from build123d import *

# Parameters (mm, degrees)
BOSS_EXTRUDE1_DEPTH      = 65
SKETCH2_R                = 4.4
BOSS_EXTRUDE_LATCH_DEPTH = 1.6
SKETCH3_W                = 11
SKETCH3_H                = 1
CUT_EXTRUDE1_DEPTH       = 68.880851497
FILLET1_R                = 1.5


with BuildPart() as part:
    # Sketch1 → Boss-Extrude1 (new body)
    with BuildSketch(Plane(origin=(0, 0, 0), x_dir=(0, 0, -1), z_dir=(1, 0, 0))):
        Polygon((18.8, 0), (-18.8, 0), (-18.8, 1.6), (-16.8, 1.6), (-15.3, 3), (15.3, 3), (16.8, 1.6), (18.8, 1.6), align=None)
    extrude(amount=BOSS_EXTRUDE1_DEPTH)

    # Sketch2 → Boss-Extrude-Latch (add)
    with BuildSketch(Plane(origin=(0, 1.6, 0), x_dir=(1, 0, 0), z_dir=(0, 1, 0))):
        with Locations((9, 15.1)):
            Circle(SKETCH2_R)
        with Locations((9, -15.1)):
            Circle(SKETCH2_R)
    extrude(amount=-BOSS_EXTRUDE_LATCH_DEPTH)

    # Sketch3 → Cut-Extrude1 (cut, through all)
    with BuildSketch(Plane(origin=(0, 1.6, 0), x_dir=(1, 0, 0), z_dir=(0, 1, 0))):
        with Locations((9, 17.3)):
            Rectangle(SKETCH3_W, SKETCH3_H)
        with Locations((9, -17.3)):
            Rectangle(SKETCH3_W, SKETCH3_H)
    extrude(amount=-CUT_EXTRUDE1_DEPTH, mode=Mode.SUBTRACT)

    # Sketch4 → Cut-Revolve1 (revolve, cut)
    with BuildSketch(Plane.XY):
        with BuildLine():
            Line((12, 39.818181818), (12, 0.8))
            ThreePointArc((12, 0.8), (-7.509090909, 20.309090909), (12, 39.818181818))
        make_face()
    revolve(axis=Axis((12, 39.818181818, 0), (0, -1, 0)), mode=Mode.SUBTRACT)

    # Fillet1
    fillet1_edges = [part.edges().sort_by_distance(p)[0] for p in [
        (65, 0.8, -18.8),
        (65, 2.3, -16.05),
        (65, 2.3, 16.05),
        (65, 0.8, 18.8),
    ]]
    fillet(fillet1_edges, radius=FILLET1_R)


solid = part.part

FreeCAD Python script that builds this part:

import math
import FreeCAD as App
import Part
import Sketcher
from FreeCAD import Vector
Q = App.Units.Quantity


def edges_at(feature, points):
    """Names of the edges that pass closest to the given points."""
    edges = feature.Shape.Edges
    near = lambda p: min(range(len(edges)), key=lambda i: edges[i].distToShape(Part.Vertex(*p))[0])
    return sorted({f"Edge{near(p) + 1}" for p in points})


def add_polygon(sketch, points):
    """Adds a closed chain of lines whose ends are joined by coincident constraints."""
    first, n = sketch.GeometryCount, len(points)
    for a, b in zip(points, points[1:] + points[:1]):
        sketch.addGeometry(Part.LineSegment(App.Vector(*a, 0), App.Vector(*b, 0)), False)
    for i in range(n):
        sketch.addConstraint(Sketcher.Constraint("Coincident", first + i, 2, first + (i + 1) % n, 1))

doc = App.newDocument("Part")
body = doc.addObject("PartDesign::Body", "Body")

sketch1 = body.newObject("Sketcher::SketchObject", "Sketch")
sketch1.AttachmentSupport = (doc.getObject("YZ_Plane"), [""])
sketch1.MapMode = "FlatFace"
add_polygon(sketch1, [(0, 18.8), (0, -18.8), (1.6, -18.8), (1.6, -16.8), (3, -15.3), (3, 15.3), (1.6, 16.8), (1.6, 18.8)])
sketch1.addConstraint(Sketcher.Constraint("Vertical", 0))
sketch1.addConstraint(Sketcher.Constraint("Horizontal", 1))
sketch1.addConstraint(Sketcher.Constraint("Vertical", 2))
sketch1.addConstraint(Sketcher.Constraint("Vertical", 4))
sketch1.addConstraint(Sketcher.Constraint("Vertical", 6))
sketch1.addConstraint(Sketcher.Constraint("Horizontal", 7))
sketch1.addConstraint(Sketcher.Constraint("Symmetric", 0, 2, 7, 2, -1, 1))
sketch1.addConstraint(Sketcher.Constraint("Symmetric", 2, 2, 5, 2, -1))
sketch1.addConstraint(Sketcher.Constraint("Equal", 3, 5))
sketch1.addConstraint(Sketcher.Constraint("DistanceY", 2, 1, 2, 2, Q("2 mm")))
sketch1.addConstraint(Sketcher.Constraint("DistanceX", 1, 1, 1, 2, Q("1.6 mm")))
sketch1.addConstraint(Sketcher.Constraint("DistanceY", 0, 2, 0, 1, Q("37.6 mm")))
sketch1.addConstraint(Sketcher.Constraint("DistanceY", 4, 1, 4, 2, Q("30.6 mm")))
sketch1.addConstraint(Sketcher.Constraint("DistanceX", -1, 1, 3, 2, Q("3 mm")))
pad1 = body.newObject("PartDesign::Pad", "Pad")
pad1.Profile = sketch1
pad1.Length = 65

sketch2 = body.newObject("Sketcher::SketchObject", "Sketch001")
sketch2.AttachmentSupport = (doc.getObject("XZ_Plane"), [""])
sketch2.MapMode = "FlatFace"
sketch2.AttachmentOffset = App.Placement(Vector(0, 0, -1.6), App.Rotation())
sketch2.addGeometry(Part.Circle(Vector(9, -15.1, 0), Vector(0, 0, 1), 4.4), False)
sketch2.addGeometry(Part.Circle(Vector(9, 15.1, 0), Vector(0, 0, 1), 4.4), False)
sketch2.addConstraint(Sketcher.Constraint("Equal", 0, 1))
sketch2.addConstraint(Sketcher.Constraint("Symmetric", 0, 3, 1, 3, -1))
sketch2.addConstraint(Sketcher.Constraint("Diameter", 0, Q("8.8 mm")))
sketch2.addConstraint(Sketcher.Constraint("DistanceX", -1, 1, 0, 3, Q("9 mm")))
sketch2.addConstraint(Sketcher.Constraint("DistanceY", 0, 3, -1, 1, Q("15.1 mm")))
pad2 = body.newObject("PartDesign::Pad", "Pad001")
pad2.Profile = sketch2
pad2.Length = 1.6

sketch3 = body.newObject("Sketcher::SketchObject", "Sketch002")
sketch3.AttachmentSupport = (doc.getObject("XZ_Plane"), [""])
sketch3.MapMode = "FlatFace"
sketch3.AttachmentOffset = App.Placement(Vector(0, 0, -1.6), App.Rotation())
add_polygon(sketch3, [(3.5, -17.8), (3.5, -16.8), (14.5, -16.8), (14.5, -17.8)])
add_polygon(sketch3, [(3.5, 16.8), (3.5, 17.8), (14.5, 17.8), (14.5, 16.8)])
sketch3.addConstraint(Sketcher.Constraint("Vertical", 0))
sketch3.addConstraint(Sketcher.Constraint("Horizontal", 1))
sketch3.addConstraint(Sketcher.Constraint("Vertical", 2))
sketch3.addConstraint(Sketcher.Constraint("Horizontal", 3))
sketch3.addConstraint(Sketcher.Constraint("Vertical", 4))
sketch3.addConstraint(Sketcher.Constraint("Horizontal", 5))
sketch3.addConstraint(Sketcher.Constraint("Vertical", 6))
sketch3.addConstraint(Sketcher.Constraint("Horizontal", 7))
sketch3.addConstraint(Sketcher.Constraint("Symmetric", 3, 2, 4, 2, -1))
sketch3.addConstraint(Sketcher.Constraint("Symmetric", 1, 2, 6, 2, -1))
sketch3.addConstraint(Sketcher.Constraint("DistanceX", 1, 1, 1, 2, Q("11 mm")))
sketch3.addConstraint(Sketcher.Constraint("DistanceY", 0, 1, 0, 2, Q("1 mm")))
sketch3.addConstraint(Sketcher.Constraint("DistanceX", -1, 1, 0, 2, Q("3.5 mm")))
sketch3.addConstraint(Sketcher.Constraint("DistanceY", 0, 2, -1, 1, Q("16.8 mm")))
pocket1 = body.newObject("PartDesign::Pocket", "Pocket")
pocket1.Profile = sketch3
pocket1.Type = "ThroughAll"
pocket1.Reversed = True

sketch4 = body.newObject("Sketcher::SketchObject", "Sketch003")
sketch4.AttachmentSupport = (doc.getObject("XY_Plane"), [""])
sketch4.MapMode = "FlatFace"
sketch4.addGeometry(Part.LineSegment(Vector(12, 1, 0), Vector(12, 40, 0)), False)
sketch4.addGeometry(Part.ArcOfCircle(Part.Circle(Vector(12, 20, 0), Vector(0, 0, 1), 20), math.radians(90), math.radians(270)), False)
sketch4.addGeometry(Part.LineSegment(Vector(12, 40, 0), Vector(12, 1, 0)), True)
sketch4.addConstraint(Sketcher.Constraint("Coincident", 0, 1, 1, 2))
sketch4.addConstraint(Sketcher.Constraint("Coincident", 1, 1, 0, 2))
sketch4.addConstraint(Sketcher.Constraint("Vertical", 0))
sketch4.addConstraint(Sketcher.Constraint("Vertical", 2))
sketch4.addConstraint(Sketcher.Constraint("Coincident", 2, 1, 1, 1))
sketch4.addConstraint(Sketcher.Constraint("Vertical", 1, 3, 0, 1))
sketch4.addConstraint(Sketcher.Constraint("Equal", 0, 2))
sketch4.addConstraint(Sketcher.Constraint("DistanceX", -1, 1, 1, 3, Q("12 mm")))
sketch4.addConstraint(Sketcher.Constraint("DistanceY", -1, 1, 0, 1, Q("0.8 mm")))
sketch4.addConstraint(Sketcher.Constraint("Radius", 1, Q("19.509091 mm")))
groove = body.newObject("PartDesign::Groove", "Groove")
groove.Profile = sketch4
groove.ReferenceAxis = (sketch4, ["Axis0"])
groove.Angle = 360
doc.recompute()

fillet = body.newObject("PartDesign::Fillet", "Fillet")
fillet.Base = (groove, edges_at(groove, [
    (65, 0.8, -18.8),
    (65, 2.3, -16.05),
    (65, 2.3, 16.05),
    (65, 0.8, 18.8),
]))
fillet.Radius = 1.5

doc.recompute()
